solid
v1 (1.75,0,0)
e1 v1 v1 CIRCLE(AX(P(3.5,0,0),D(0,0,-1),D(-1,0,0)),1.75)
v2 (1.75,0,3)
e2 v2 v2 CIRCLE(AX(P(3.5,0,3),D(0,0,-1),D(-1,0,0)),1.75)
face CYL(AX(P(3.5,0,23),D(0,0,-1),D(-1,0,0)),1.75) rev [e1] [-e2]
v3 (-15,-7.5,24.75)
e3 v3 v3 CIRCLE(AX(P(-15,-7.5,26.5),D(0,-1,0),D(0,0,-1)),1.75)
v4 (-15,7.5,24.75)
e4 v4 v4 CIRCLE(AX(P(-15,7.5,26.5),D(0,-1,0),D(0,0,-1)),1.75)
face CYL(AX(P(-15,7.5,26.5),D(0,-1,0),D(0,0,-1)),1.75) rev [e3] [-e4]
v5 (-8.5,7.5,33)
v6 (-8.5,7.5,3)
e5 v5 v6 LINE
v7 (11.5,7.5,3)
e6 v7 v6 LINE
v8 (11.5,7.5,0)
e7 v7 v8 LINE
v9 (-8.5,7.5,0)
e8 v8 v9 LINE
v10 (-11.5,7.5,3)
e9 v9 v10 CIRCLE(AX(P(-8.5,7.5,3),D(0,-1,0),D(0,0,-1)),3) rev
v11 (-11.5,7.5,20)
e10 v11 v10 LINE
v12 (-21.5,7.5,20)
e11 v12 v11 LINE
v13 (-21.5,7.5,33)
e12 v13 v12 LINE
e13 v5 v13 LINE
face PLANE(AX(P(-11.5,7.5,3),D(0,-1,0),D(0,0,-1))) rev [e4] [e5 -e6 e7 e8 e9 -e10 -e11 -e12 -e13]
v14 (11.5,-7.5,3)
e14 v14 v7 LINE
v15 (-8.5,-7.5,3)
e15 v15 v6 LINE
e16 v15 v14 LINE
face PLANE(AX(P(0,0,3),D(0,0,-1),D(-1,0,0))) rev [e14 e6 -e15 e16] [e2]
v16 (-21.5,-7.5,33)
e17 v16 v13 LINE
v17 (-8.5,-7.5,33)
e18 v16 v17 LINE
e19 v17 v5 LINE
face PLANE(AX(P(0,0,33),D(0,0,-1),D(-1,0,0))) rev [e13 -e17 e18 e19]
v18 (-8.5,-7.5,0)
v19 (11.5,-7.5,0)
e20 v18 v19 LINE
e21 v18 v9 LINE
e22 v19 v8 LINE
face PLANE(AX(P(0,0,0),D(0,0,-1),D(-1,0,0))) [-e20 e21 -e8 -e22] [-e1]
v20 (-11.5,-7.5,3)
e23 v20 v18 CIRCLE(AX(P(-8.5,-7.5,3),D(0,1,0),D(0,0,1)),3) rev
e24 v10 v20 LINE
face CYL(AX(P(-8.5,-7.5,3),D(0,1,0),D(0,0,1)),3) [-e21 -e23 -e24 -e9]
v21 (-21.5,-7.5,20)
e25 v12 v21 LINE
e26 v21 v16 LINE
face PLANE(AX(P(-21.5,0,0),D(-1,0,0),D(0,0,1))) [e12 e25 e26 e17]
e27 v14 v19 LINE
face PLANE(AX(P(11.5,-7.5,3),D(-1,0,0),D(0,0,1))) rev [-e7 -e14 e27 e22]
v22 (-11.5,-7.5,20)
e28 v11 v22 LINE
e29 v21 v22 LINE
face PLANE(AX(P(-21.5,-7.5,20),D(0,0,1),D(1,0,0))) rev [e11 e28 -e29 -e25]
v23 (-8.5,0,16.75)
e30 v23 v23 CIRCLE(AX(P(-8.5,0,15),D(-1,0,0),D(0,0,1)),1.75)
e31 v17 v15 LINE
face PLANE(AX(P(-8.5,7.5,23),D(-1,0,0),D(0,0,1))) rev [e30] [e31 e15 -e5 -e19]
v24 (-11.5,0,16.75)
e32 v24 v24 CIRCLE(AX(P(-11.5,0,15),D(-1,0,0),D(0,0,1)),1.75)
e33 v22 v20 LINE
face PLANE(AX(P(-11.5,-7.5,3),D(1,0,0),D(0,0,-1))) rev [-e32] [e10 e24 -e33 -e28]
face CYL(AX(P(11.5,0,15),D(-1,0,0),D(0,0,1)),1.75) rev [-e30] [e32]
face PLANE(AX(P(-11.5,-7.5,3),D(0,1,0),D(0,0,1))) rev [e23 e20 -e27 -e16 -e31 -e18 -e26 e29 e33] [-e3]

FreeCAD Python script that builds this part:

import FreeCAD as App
import Part
import Sketcher
from FreeCAD import Vector
Q = App.Units.Quantity


def edges_at(feature, points):
    """Names of the edges that pass closest to the given points."""
    edges = feature.Shape.Edges
    near = lambda p: min(range(len(edges)), key=lambda i: edges[i].distToShape(Part.Vertex(*p))[0])
    return sorted({f"Edge{near(p) + 1}" for p in points})

doc = App.newDocument("Part")
body = doc.addObject("PartDesign::Body", "Body")

# Sketch on XY plane
sketch1 = body.newObject("Sketcher::SketchObject", "Sketch")
sketch1.AttachmentSupport = (doc.getObject("XY_Plane"), [""])
sketch1.MapMode = "FlatFace"
sketch1.addGeometry([
    Part.LineSegment(Vector(-12, 8, 0), Vector(-12, -8, 0)),
    Part.LineSegment(Vector(-12, -8, 0), Vector(12, -8, 0)),
    Part.LineSegment(Vector(12, -8, 0), Vector(12, 8, 0)),
    Part.LineSegment(Vector(12, 8, 0), Vector(-12, 8, 0)),
], False)
sketch1.addConstraint([
    Sketcher.Constraint("Coincident", 0, 2, 1, 1),
    Sketcher.Constraint("Coincident", 1, 2, 2, 1),
    Sketcher.Constraint("Coincident", 2, 2, 3, 1),
    Sketcher.Constraint("Coincident", 3, 2, 0, 1),
    Sketcher.Constraint("Vertical", 0),
    Sketcher.Constraint("Horizontal", 1),
    Sketcher.Constraint("Vertical", 2),
    Sketcher.Constraint("Horizontal", 3),
    Sketcher.Constraint("Symmetric", 0, 2, 2, 2, -1, 1),
    Sketcher.Constraint("DistanceX", 1, 1, 1, 2, Q("23 mm")),
    Sketcher.Constraint("DistanceY", 0, 2, 0, 1, Q("15 mm")),
])
pad1 = body.newObject("PartDesign::Pad", "Pad")
pad1.Profile = sketch1
pad1.Length = 3

# Sketch on XY plane
sketch2 = body.newObject("Sketcher::SketchObject", "Sketch001")
sketch2.AttachmentSupport = (doc.getObject("XY_Plane"), [""])
sketch2.MapMode = "FlatFace"
sketch2.AttachmentOffset = App.Placement(Vector(0, 0, 3), App.Rotation())
sketch2.addGeometry([
    Part.LineSegment(Vector(-11.5, 7.5, 0), Vector(-11.5, -7.5, 0)),
    Part.LineSegment(Vector(-11.5, -7.5, 0), Vector(-8.5, -7.5, 0)),
    Part.LineSegment(Vector(-8.5, -7.5, 0), Vector(-8.5, 7.5, 0)),
    Part.LineSegment(Vector(-8.5, 7.5, 0), Vector(-11.5, 7.5, 0)),
], False)
sketch2.addConstraint([
    Sketcher.Constraint("Coincident", 0, 2, 1, 1),
    Sketcher.Constraint("Coincident", 1, 2, 2, 1),
    Sketcher.Constraint("Coincident", 2, 2, 3, 1),
    Sketcher.Constraint("Coincident", 3, 2, 0, 1),
    Sketcher.Constraint("Vertical", 0),
    Sketcher.Constraint("Horizontal", 1),
    Sketcher.Constraint("Vertical", 2),
    Sketcher.Constraint("Horizontal", 3),
    Sketcher.Constraint("DistanceX", 1, 1, 1, 2, Q("3 mm")),
    Sketcher.Constraint("DistanceY", 0, 2, 0, 1, Q("15 mm")),
    Sketcher.Constraint("DistanceX", 0, 2, -1, 1, Q("11.5 mm")),
    Sketcher.Constraint("DistanceY", 0, 2, -1, 1, Q("7.5 mm")),
])
pad2 = body.newObject("PartDesign::Pad", "Pad001")
pad2.Profile = sketch2
pad2.Length = 20

# Sketch on XY plane
sketch3 = body.newObject("Sketcher::SketchObject", "Sketch002")
sketch3.AttachmentSupport = (doc.getObject("XY_Plane"), [""])
sketch3.MapMode = "FlatFace"
sketch3.addGeometry(Part.Circle(Vector(3.5, 0, 0), Vector(0, 0, 1), 1.8), False)
sketch3.addConstraint([
    Sketcher.Constraint("PointOnObject", 0, 3, -1),
    Sketcher.Constraint("Diameter", 0, Q("3.5 mm")),
    Sketcher.Constraint("DistanceX", -1, 1, 0, 3, Q("3.5 mm")),
])
pocket1 = body.newObject("PartDesign::Pocket", "Pocket")
pocket1.Profile = sketch3
pocket1.Type = "ThroughAll"
pocket1.Reversed = True

# Sketch on YZ plane
sketch4 = body.newObject("Sketcher::SketchObject", "Sketch003")
sketch4.AttachmentSupport = (doc.getObject("YZ_Plane"), [""])
sketch4.MapMode = "FlatFace"
sketch4.AttachmentOffset = App.Placement(Vector(0, 0, -11.5), App.Rotation())
sketch4.addGeometry(Part.Circle(Vector(0, 15, 0), Vector(0, 0, 1), 1.8), False)
sketch4.addConstraint([
    Sketcher.Constraint("PointOnObject", 0, 3, -2),
    Sketcher.Constraint("Diameter", 0, Q("3.5 mm")),
    Sketcher.Constraint("DistanceY", -1, 1, 0, 3, Q("15 mm")),
])
pocket2 = body.newObject("PartDesign::Pocket", "Pocket001")
pocket2.Profile = sketch4
pocket2.Type = "ThroughAll"
pocket2.Reversed = True
doc.recompute()

fillet = body.newObject("PartDesign::Fillet", "Fillet")
fillet.Base = (pocket2, edges_at(pocket2, [(-11.5, 0, 0)]))
fillet.Radius = 3

# Sketch on XY plane
sketch5 = body.newObject("Sketcher::SketchObject", "Sketch004")
sketch5.AttachmentSupport = (doc.getObject("XY_Plane"), [""])
sketch5.MapMode = "FlatFace"
sketch5.AttachmentOffset = App.Placement(Vector(0, 0, 23), App.Rotation())
sketch5.addGeometry([
    Part.LineSegment(Vector(-11.5, 7.5, 0), Vector(-11.5, -7.5, 0)),
    Part.LineSegment(Vector(-11.5, -7.5, 0), Vector(-8.5, -7.5, 0)),
    Part.LineSegment(Vector(-8.5, -7.5, 0), Vector(-8.5, 7.5, 0)),
    Part.LineSegment(Vector(-8.5, 7.5, 0), Vector(-11.5, 7.5, 0)),
], False)
sketch5.addConstraint([
    Sketcher.Constraint("Coincident", 0, 2, 1, 1),
    Sketcher.Constraint("Coincident", 1, 2, 2, 1),
    Sketcher.Constraint("Coincident", 2, 2, 3, 1),
    Sketcher.Constraint("Coincident", 3, 2, 0, 1),
    Sketcher.Constraint("Vertical", 0),
    Sketcher.Constraint("Horizontal", 1),
    Sketcher.Constraint("Vertical", 2),
    Sketcher.Constraint("Horizontal", 3),
    Sketcher.Constraint("DistanceX", 1, 1, 1, 2, Q("3 mm")),
    Sketcher.Constraint("DistanceY", 0, 2, 0, 1, Q("15 mm")),
    Sketcher.Constraint("DistanceX", 0, 2, -1, 1, Q("11.5 mm")),
    Sketcher.Constraint("DistanceY", 0, 2, -1, 1, Q("7.5 mm")),
])
pad3 = body.newObject("PartDesign::Pad", "Pad002")
pad3.Profile = sketch5
pad3.Length = 10

# Sketch on YZ plane
sketch6 = body.newObject("Sketcher::SketchObject", "Sketch005")
sketch6.AttachmentSupport = (doc.getObject("YZ_Plane"), [""])
sketch6.MapMode = "FlatFace"
sketch6.AttachmentOffset = App.Placement(Vector(0, 0, -11.5), App.Rotation())
sketch6.addGeometry([
    Part.LineSegment(Vector(8, 20, 0), Vector(-8, 20, 0)),
    Part.LineSegment(Vector(-8, 20, 0), Vector(-8, 33, 0)),
    Part.LineSegment(Vector(-8, 33, 0), Vector(8, 33, 0)),
    Part.LineSegment(Vector(8, 33, 0), Vector(8, 20, 0)),
], False)
sketch6.addConstraint([
    Sketcher.Constraint("Coincident", 0, 2, 1, 1),
    Sketcher.Constraint("Coincident", 1, 2, 2, 1),
    Sketcher.Constraint("Coincident", 2, 2, 3, 1),
    Sketcher.Constraint("Coincident", 3, 2, 0, 1),
    Sketcher.Constraint("Horizontal", 0),
    Sketcher.Constraint("Vertical", 1),
    Sketcher.Constraint("Horizontal", 2),
    Sketcher.Constraint("Vertical", 3),
    Sketcher.Constraint("DistanceX", 0, 2, 0, 1, Q("15 mm")),
    Sketcher.Constraint("DistanceY", 1, 1, 1, 2, Q("13 mm")),
    Sketcher.Constraint("DistanceY", -1, 1, 0, 2, Q("20 mm")),
    Sketcher.Constraint("DistanceX", 0, 2, -1, 1, Q("7.5 mm")),
])
pad4 = body.newObject("PartDesign::Pad", "Pad003")
pad4.Profile = sketch6
pad4.Length = 10
pad4.Reversed = True

# Sketch on XZ plane
sketch7 = body.newObject("Sketcher::SketchObject", "Sketch006")
sketch7.AttachmentSupport = (doc.getObject("XZ_Plane"), [""])
sketch7.MapMode = "FlatFace"
sketch7.AttachmentOffset = App.Placement(Vector(0, 0, 7.5), App.Rotation())
sketch7.addGeometry(Part.Circle(Vector(-15, 26.5, 0), Vector(0, 0, 1), 1.8), False)
sketch7.addConstraint([
    Sketcher.Constraint("Diameter", 0, Q("3.5 mm")),
    Sketcher.Constraint("DistanceX", 0, 3, -1, 1, Q("15 mm")),
    Sketcher.Constraint("DistanceY", -1, 1, 0, 3, Q("26.5 mm")),
])
pocket3 = body.newObject("PartDesign::Pocket", "Pocket002")
pocket3.Profile = sketch7
pocket3.Type = "ThroughAll"

doc.recompute()
